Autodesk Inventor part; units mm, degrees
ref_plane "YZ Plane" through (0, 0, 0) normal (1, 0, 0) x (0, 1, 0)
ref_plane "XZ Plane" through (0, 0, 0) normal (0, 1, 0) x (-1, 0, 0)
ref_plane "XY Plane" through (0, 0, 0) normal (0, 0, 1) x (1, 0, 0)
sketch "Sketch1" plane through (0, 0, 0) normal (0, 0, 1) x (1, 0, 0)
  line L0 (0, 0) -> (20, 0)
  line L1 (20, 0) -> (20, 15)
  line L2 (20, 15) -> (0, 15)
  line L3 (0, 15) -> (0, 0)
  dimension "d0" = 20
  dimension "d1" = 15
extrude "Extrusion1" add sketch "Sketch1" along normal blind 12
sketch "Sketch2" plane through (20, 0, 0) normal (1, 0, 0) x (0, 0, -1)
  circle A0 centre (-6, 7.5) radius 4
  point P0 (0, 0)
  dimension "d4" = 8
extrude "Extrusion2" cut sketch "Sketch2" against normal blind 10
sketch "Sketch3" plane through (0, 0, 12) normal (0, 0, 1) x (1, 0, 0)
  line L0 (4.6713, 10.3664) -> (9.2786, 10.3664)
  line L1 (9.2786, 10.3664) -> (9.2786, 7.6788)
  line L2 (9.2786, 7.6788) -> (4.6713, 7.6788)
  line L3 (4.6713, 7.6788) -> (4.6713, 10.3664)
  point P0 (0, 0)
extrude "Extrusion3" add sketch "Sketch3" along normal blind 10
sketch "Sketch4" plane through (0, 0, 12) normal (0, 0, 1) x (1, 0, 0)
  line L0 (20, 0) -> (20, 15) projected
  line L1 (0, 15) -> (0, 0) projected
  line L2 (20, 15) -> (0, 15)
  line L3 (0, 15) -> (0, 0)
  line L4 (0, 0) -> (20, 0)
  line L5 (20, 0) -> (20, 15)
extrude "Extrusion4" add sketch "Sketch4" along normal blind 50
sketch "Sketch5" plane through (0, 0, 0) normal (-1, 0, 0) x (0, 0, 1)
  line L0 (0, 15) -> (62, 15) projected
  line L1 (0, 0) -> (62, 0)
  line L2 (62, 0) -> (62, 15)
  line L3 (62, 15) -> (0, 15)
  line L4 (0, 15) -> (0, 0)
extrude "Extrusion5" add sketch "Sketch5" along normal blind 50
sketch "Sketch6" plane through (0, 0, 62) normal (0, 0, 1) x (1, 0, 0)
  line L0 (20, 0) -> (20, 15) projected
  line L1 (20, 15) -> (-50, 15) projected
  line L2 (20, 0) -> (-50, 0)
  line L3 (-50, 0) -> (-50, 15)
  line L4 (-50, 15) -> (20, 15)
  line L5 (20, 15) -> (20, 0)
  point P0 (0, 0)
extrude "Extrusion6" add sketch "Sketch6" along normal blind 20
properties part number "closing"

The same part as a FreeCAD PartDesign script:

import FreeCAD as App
import Part
import Sketcher
Q = App.Units.Quantity


def add_polygon(sketch, points):
    """Adds a closed chain of lines whose ends are joined by coincident constraints."""
    first, n = sketch.GeometryCount, len(points)
    for a, b in zip(points, points[1:] + points[:1]):
        sketch.addGeometry(Part.LineSegment(App.Vector(*a, 0), App.Vector(*b, 0)), False)
    for i in range(n):
        sketch.addConstraint(Sketcher.Constraint("Coincident", first + i, 2, first + (i + 1) % n, 1))

doc = App.newDocument("Part")
params = doc.addObject("Spreadsheet::Sheet", "Params")
for row, (alias, value) in enumerate([
    ("sketch1_width", "20 mm"),
    ("sketch1_height", "15 mm"),
    ("pad1_length", "12 mm"),
    ("sketch2_diameter", "8 mm"),
    ("pocket1_length", "10 mm"),
    ("pad2_length", "10 mm"),
    ("sketch4_width", "20 mm"),
    ("sketch4_height", "15 mm"),
    ("pad3_length", "50 mm"),
    ("sketch5_width", "15 mm"),
    ("sketch5_height", "62 mm"),
    ("pad4_length", "50 mm"),
    ("sketch6_width", "70 mm"),
    ("sketch6_height", "15 mm"),
    ("pad5_length", "20 mm"),
], start=1):
    params.set(f"A{row}", alias)
    params.set(f"B{row}", "=" + value)
    params.setAlias(f"B{row}", alias)

body = doc.addObject("PartDesign::Body", "Body")

# Sketch on XY plane
sketch1 = doc.addObject("Sketcher::SketchObject", "Sketch")
body.addObject(sketch1)
sketch1.AttachmentSupport = (doc.XY_Plane, [""])
sketch1.MapMode = "FlatFace"
add_polygon(sketch1, [(0, 15), (0, 0), (20, 0), (20, 15)])  # lines 0-3
sketch1.addConstraint(Sketcher.Constraint("Vertical", 0))
sketch1.addConstraint(Sketcher.Constraint("Horizontal", 1))
sketch1.addConstraint(Sketcher.Constraint("Vertical", 2))
sketch1.addConstraint(Sketcher.Constraint("Horizontal", 3))
sketch1.addConstraint(Sketcher.Constraint("Coincident", 0, 2, -1, 1))
sketch1.addConstraint(Sketcher.Constraint("DistanceX", 1, 1, 1, 2, Q("20 mm")))
sketch1.addConstraint(Sketcher.Constraint("DistanceY", 0, 2, 0, 1, Q("15 mm")))
sketch1.setExpression("Constraints[9]", "Params.sketch1_width")
sketch1.setExpression("Constraints[10]", "Params.sketch1_height")
pad1 = doc.addObject("PartDesign::Pad", "Pad")
body.addObject(pad1)
pad1.Profile = sketch1
pad1.setExpression("Length", "Params.pad1_length")

# Sketch on YZ plane
sketch2 = doc.addObject("Sketcher::SketchObject", "Sketch001")
body.addObject(sketch2)
sketch2.AttachmentSupport = (doc.YZ_Plane, [""])
sketch2.MapMode = "FlatFace"
sketch2.AttachmentOffset = App.Placement(App.Vector(0, 0, 20), App.Rotation())
sketch2.addGeometry(Part.Circle(App.Vector(7.5, 6, 0), App.Vector(0, 0, 1), 4), False)
sketch2.addConstraint(Sketcher.Constraint("Diameter", 0, Q("8 mm")))
sketch2.addConstraint(Sketcher.Constraint("DistanceY", -1, 1, 0, 3, Q("6 mm")))
sketch2.addConstraint(Sketcher.Constraint("DistanceX", -1, 1, 0, 3, Q("7.5 mm")))
sketch2.setExpression("Constraints[0]", "Params.sketch2_diameter")
pocket1 = doc.addObject("PartDesign::Pocket", "Pocket")
body.addObject(pocket1)
pocket1.Profile = sketch2
pocket1.setExpression("Length", "Params.pocket1_length")

# Sketch on XY plane
sketch3 = doc.addObject("Sketcher::SketchObject", "Sketch002")
body.addObject(sketch3)
sketch3.AttachmentSupport = (doc.XY_Plane, [""])
sketch3.MapMode = "FlatFace"
sketch3.AttachmentOffset = App.Placement(App.Vector(0, 0, 12), App.Rotation())
add_polygon(sketch3, [(9.3, 10.4), (4.7, 10.4), (4.7, 7.7), (9.3, 7.7)])  # lines 0-3
sketch3.addConstraint(Sketcher.Constraint("Horizontal", 0))
sketch3.addConstraint(Sketcher.Constraint("Vertical", 1))
sketch3.addConstraint(Sketcher.Constraint("Horizontal", 2))
sketch3.addConstraint(Sketcher.Constraint("Vertical", 3))
sketch3.addConstraint(Sketcher.Constraint("DistanceX", 0, 2, 0, 1, Q("4.6073 mm")))
sketch3.addConstraint(Sketcher.Constraint("DistanceY", 1, 2, 1, 1, Q("2.6876 mm")))
sketch3.addConstraint(Sketcher.Constraint("DistanceX", -1, 1, 0, 2, Q("4.6713 mm")))
sketch3.addConstraint(Sketcher.Constraint("DistanceY", -1, 1, 0, 2, Q("10.3664 mm")))
pad2 = doc.addObject("PartDesign::Pad", "Pad001")
body.addObject(pad2)
pad2.Profile = sketch3
pad2.setExpression("Length", "Params.pad2_length")

# Sketch on XY plane
sketch4 = doc.addObject("Sketcher::SketchObject", "Sketch003")
body.addObject(sketch4)
sketch4.AttachmentSupport = (doc.XY_Plane, [""])
sketch4.MapMode = "FlatFace"
sketch4.AttachmentOffset = App.Placement(App.Vector(0, 0, 12), App.Rotation())
add_polygon(sketch4, [(0, 0), (20, 0), (20, 15), (0, 15)])  # lines 0-3
sketch4.addConstraint(Sketcher.Constraint("Horizontal", 0))
sketch4.addConstraint(Sketcher.Constraint("Vertical", 1))
sketch4.addConstraint(Sketcher.Constraint("Horizontal", 2))
sketch4.addConstraint(Sketcher.Constraint("Vertical", 3))
sketch4.addConstraint(Sketcher.Constraint("Coincident", 3, 2, -1, 1))
sketch4.addConstraint(Sketcher.Constraint("DistanceX", 0, 1, 0, 2, Q("20 mm")))
sketch4.addConstraint(Sketcher.Constraint("DistanceY", 1, 1, 1, 2, Q("15 mm")))
sketch4.setExpression("Constraints[9]", "Params.sketch4_width")
sketch4.setExpression("Constraints[10]", "Params.sketch4_height")
pad3 = doc.addObject("PartDesign::Pad", "Pad002")
body.addObject(pad3)
pad3.Profile = sketch4
pad3.setExpression("Length", "Params.pad3_length")

# Sketch on YZ plane
sketch5 = doc.addObject("Sketcher::SketchObject", "Sketch004")
body.addObject(sketch5)
sketch5.AttachmentSupport = (doc.YZ_Plane, [""])
sketch5.MapMode = "FlatFace"
add_polygon(sketch5, [(15, 62), (15, 0), (0, 0), (0, 62)])  # lines 0-3
sketch5.addConstraint(Sketcher.Constraint("Vertical", 0))
sketch5.addConstraint(Sketcher.Constraint("Horizontal", 1))
sketch5.addConstraint(Sketcher.Constraint("Vertical", 2))
sketch5.addConstraint(Sketcher.Constraint("Horizontal", 3))
sketch5.addConstraint(Sketcher.Constraint("Coincident", 1, 2, -1, 1))
sketch5.addConstraint(Sketcher.Constraint("DistanceX", 1, 2, 1, 1, Q("15 mm")))
sketch5.addConstraint(Sketcher.Constraint("DistanceY", 0, 2, 0, 1, Q("62 mm")))
sketch5.setExpression("Constraints[9]", "Params.sketch5_width")
sketch5.setExpression("Constraints[10]", "Params.sketch5_height")
pad4 = doc.addObject("PartDesign::Pad", "Pad003")
body.addObject(pad4)
pad4.Profile = sketch5
pad4.setExpression("Length", "Params.pad4_length")
pad4.Reversed = True

# Sketch on XY plane
sketch6 = doc.addObject("Sketcher::SketchObject", "Sketch005")
body.addObject(sketch6)
sketch6.AttachmentSupport = (doc.XY_Plane, [""])
sketch6.MapMode = "FlatFace"
sketch6.AttachmentOffset = App.Placement(App.Vector(0, 0, 62), App.Rotation())
add_polygon(sketch6, [(-50, 0), (20, 0), (20, 15), (-50, 15)])  # lines 0-3
sketch6.addConstraint(Sketcher.Constraint("Horizontal", 0))
sketch6.addConstraint(Sketcher.Constraint("Vertical", 1))
sketch6.addConstraint(Sketcher.Constraint("Horizontal", 2))
sketch6.addConstraint(Sketcher.Constraint("Vertical", 3))
sketch6.addConstraint(Sketcher.Constraint("PointOnObject", 0, 2, -1))
sketch6.addConstraint(Sketcher.Constraint("DistanceX", 0, 1, 0, 2, Q("70 mm")))
sketch6.addConstraint(Sketcher.Constraint("DistanceY", 1, 1, 1, 2, Q("15 mm")))
sketch6.addConstraint(Sketcher.Constraint("DistanceX", -1, 1, 0, 2, Q("20 mm")))
sketch6.setExpression("Constraints[9]", "Params.sketch6_width")
sketch6.setExpression("Constraints[10]", "Params.sketch6_height")
pad5 = doc.addObject("PartDesign::Pad", "Pad004")
body.addObject(pad5)
pad5.Profile = sketch6
pad5.setExpression("Length", "Params.pad5_length")

doc.recompute()
